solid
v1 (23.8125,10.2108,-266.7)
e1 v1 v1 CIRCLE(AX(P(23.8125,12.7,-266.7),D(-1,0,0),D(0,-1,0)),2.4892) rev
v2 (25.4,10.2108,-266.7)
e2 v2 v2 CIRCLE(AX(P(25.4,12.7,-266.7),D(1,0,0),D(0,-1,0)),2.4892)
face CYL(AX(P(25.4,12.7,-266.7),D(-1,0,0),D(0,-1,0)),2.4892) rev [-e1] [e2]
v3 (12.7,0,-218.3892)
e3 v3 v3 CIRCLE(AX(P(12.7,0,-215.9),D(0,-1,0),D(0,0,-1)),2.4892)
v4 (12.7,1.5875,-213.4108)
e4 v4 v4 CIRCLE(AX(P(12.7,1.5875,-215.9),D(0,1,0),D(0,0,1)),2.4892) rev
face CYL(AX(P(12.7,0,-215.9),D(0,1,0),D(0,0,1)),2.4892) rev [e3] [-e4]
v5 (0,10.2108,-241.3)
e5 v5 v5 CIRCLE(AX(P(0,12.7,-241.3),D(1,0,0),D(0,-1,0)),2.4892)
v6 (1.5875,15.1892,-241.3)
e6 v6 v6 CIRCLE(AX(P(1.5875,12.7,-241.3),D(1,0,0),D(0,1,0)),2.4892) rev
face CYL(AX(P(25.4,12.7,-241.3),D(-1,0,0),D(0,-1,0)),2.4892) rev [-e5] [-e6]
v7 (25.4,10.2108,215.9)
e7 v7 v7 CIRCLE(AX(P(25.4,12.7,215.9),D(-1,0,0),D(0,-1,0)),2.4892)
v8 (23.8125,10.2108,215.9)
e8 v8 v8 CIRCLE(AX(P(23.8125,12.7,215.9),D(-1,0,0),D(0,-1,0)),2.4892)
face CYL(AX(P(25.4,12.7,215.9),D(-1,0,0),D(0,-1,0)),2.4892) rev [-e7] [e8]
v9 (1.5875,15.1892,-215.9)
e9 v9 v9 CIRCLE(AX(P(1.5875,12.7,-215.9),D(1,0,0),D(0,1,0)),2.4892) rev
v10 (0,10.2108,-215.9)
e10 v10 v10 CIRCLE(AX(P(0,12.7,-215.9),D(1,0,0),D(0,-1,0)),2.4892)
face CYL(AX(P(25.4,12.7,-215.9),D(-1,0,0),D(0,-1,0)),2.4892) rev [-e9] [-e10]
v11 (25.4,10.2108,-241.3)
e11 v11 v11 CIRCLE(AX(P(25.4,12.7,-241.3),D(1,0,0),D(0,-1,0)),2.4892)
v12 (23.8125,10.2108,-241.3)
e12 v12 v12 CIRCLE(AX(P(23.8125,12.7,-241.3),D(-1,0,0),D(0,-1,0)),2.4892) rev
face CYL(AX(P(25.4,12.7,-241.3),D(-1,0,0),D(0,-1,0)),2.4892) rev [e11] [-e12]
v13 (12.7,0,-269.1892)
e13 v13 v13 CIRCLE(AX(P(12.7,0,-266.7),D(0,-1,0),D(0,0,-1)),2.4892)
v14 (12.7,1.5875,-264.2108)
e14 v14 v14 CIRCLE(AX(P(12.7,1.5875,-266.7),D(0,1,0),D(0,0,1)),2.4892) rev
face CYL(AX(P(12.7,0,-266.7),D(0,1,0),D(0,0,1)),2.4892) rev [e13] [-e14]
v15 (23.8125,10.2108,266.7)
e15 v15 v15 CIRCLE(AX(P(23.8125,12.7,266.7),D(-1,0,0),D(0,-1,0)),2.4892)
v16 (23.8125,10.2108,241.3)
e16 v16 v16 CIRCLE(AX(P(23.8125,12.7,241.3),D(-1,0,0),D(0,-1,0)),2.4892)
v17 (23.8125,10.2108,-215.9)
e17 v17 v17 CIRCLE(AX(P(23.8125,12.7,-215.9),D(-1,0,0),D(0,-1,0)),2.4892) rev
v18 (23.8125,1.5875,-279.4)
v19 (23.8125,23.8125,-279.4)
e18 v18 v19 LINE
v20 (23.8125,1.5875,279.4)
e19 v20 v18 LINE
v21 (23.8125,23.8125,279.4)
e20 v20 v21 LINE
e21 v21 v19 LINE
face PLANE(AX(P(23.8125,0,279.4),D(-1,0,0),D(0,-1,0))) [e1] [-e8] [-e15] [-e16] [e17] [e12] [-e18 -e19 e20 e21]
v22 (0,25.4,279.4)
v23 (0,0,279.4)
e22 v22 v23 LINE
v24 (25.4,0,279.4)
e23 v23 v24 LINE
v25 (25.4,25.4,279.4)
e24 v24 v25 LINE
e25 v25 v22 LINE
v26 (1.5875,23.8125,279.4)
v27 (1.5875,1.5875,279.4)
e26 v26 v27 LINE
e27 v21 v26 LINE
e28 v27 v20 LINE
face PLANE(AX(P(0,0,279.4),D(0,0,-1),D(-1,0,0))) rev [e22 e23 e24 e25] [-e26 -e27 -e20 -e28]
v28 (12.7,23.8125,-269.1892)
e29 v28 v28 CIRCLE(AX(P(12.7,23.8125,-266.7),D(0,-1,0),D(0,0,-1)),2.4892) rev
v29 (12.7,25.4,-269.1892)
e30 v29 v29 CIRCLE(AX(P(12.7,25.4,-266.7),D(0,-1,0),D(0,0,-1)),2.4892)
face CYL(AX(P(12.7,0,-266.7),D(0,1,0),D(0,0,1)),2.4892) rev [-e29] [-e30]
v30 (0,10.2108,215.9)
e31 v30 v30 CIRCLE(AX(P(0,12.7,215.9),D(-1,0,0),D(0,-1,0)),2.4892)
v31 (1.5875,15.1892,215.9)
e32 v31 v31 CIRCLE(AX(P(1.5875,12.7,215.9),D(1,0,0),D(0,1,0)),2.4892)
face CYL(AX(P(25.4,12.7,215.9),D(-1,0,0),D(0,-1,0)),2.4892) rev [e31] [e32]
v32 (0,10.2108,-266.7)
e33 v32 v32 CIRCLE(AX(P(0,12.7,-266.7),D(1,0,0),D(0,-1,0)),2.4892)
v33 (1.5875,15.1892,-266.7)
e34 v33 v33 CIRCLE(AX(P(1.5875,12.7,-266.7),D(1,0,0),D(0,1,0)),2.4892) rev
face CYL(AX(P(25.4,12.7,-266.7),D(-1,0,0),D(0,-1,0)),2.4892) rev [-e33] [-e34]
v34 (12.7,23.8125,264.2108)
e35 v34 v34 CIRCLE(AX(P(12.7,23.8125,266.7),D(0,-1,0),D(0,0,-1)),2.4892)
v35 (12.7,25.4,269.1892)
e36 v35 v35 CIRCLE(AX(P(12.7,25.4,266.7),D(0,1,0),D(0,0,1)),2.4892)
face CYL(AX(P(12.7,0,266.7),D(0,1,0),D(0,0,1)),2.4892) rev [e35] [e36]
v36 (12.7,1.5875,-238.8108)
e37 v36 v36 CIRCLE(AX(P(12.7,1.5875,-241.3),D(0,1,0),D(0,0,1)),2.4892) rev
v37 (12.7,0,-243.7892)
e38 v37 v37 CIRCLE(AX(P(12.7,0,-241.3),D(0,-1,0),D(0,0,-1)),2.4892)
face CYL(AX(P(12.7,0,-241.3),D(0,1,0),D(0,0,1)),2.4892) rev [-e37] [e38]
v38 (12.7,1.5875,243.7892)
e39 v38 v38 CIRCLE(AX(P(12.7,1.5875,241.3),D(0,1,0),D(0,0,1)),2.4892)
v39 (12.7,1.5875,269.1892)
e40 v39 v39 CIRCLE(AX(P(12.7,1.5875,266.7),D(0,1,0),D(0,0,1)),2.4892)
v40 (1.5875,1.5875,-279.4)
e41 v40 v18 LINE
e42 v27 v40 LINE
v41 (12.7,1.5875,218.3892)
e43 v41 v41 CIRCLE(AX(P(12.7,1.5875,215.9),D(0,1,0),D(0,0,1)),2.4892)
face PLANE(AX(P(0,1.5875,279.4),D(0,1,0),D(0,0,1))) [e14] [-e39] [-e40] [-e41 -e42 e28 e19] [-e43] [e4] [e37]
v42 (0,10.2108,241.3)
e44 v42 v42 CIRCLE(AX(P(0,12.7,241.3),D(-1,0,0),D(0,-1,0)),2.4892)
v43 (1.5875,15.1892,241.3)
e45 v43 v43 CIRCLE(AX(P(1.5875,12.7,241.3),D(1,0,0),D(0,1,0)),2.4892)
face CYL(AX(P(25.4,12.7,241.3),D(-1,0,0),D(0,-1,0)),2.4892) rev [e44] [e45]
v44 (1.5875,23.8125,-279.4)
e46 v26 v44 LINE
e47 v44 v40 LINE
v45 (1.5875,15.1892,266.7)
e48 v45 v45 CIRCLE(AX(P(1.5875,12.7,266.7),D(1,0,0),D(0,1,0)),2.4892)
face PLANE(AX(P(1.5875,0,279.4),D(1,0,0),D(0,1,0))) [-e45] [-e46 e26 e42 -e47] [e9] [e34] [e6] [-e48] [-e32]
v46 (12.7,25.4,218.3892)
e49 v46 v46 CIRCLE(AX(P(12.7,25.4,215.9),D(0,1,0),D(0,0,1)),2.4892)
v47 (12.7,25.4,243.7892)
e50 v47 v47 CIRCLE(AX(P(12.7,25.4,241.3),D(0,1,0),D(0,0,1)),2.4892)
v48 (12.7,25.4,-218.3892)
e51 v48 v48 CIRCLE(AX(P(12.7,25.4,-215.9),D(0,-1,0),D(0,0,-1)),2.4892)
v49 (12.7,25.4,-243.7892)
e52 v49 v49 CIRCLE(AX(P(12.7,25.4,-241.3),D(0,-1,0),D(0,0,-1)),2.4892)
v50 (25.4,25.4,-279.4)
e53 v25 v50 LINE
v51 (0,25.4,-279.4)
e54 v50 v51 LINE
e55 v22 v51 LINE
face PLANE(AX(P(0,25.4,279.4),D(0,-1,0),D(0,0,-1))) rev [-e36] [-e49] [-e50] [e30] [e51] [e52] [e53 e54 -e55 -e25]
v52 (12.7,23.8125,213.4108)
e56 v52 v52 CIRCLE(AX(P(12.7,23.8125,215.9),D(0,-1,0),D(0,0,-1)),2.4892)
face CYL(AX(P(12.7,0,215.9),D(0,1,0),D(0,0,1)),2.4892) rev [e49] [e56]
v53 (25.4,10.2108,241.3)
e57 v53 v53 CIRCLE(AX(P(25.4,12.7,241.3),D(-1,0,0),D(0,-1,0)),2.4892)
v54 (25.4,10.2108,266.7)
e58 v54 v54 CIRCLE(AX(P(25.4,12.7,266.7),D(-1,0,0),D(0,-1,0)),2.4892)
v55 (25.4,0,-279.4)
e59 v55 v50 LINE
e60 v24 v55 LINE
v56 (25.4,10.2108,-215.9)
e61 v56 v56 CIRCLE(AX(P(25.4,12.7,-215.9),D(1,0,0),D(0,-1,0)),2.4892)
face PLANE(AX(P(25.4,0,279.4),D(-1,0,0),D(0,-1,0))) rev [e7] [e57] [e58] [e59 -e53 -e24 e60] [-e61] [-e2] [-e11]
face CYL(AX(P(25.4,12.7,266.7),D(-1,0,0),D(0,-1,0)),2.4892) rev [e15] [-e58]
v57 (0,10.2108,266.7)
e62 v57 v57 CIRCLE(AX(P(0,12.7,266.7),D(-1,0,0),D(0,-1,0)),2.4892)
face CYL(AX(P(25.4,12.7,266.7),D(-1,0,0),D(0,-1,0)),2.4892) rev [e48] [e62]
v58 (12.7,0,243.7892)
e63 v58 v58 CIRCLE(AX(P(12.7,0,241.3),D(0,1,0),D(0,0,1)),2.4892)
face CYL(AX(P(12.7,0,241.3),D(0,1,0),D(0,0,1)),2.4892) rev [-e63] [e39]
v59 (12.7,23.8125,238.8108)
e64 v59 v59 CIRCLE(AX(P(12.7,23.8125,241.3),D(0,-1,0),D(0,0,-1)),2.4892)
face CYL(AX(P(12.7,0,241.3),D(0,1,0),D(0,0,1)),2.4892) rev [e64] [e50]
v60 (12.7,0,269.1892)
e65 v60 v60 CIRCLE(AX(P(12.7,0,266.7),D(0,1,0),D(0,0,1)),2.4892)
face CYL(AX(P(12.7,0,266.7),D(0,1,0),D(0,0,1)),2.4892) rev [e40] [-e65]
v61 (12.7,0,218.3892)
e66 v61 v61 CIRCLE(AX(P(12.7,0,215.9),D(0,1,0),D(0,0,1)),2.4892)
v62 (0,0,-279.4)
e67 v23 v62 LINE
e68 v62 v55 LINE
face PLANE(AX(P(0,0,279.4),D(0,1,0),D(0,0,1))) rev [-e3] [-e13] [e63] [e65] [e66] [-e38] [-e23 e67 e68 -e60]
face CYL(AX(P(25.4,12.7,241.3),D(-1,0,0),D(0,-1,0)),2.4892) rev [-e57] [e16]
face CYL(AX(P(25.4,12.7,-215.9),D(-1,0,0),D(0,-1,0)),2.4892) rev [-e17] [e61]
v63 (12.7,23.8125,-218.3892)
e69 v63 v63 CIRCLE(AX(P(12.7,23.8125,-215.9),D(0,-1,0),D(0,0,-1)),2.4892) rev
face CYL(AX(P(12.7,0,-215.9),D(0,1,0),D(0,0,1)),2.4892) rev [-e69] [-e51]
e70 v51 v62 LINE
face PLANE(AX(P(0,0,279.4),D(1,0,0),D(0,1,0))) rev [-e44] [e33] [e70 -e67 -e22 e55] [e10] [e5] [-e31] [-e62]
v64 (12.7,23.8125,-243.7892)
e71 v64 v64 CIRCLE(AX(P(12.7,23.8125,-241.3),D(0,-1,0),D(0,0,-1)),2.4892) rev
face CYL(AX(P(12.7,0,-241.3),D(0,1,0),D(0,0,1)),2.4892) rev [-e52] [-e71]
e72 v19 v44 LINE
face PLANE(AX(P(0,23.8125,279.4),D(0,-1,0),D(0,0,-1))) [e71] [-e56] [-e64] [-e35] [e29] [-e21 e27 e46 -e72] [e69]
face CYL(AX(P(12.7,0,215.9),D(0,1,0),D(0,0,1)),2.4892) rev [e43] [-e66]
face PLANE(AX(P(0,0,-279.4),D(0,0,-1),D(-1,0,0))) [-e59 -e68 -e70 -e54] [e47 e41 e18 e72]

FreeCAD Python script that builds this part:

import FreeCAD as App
import Part
import Sketcher

V = App.Vector
Q = App.Units.Quantity


def faces_at(feature, points):
    """Names of the faces that lie closest to the given points."""
    faces = feature.Shape.Faces
    near = lambda p: min(range(len(faces)), key=lambda i: faces[i].distToShape(Part.Vertex(*p))[0])
    return sorted({f"Face{near(p) + 1}" for p in points})


def add_polygon(sketch, points):
    """Adds a closed chain of lines whose ends are joined by coincident constraints."""
    first, n = sketch.GeometryCount, len(points)
    for a, b in zip(points, points[1:] + points[:1]):
        sketch.addGeometry(Part.LineSegment(App.Vector(*a, 0), App.Vector(*b, 0)), False)
    for i in range(n):
        sketch.addConstraint(Sketcher.Constraint("Coincident", first + i, 2, first + (i + 1) % n, 1))

doc = App.newDocument("Part")
body = doc.addObject("PartDesign::Body", "Body")

sketch1 = body.newObject("Sketcher::SketchObject", "Sketch")
sketch1.AttachmentSupport = (doc.getObject("XY_Plane"), [""])
sketch1.MapMode = "FlatFace"
add_polygon(sketch1, [(0, 25), (0, 0), (25, 0), (25, 25)])
sketch1.addConstraint([
    Sketcher.Constraint("Vertical", 0),
    Sketcher.Constraint("Horizontal", 1),
    Sketcher.Constraint("Vertical", 2),
    Sketcher.Constraint("Horizontal", 3),
    Sketcher.Constraint("Coincident", 0, 2, -1, 1),
    Sketcher.Constraint("Equal", 3, 0),
    Sketcher.Constraint("DistanceX", 1, 1, 1, 2, Q("1 in")),
])
pad1 = body.newObject("PartDesign::Pad", "Pad")
pad1.Profile = sketch1
pad1.Length = Q("22 in")
pad1.Midplane = True
doc.recompute()

thickness = body.newObject("PartDesign::Thickness", "Thickness")
thickness.Base = (pad1, faces_at(pad1, [(12.7, 12.7, 279.4), (12.7, 12.7, -279.4)]))
thickness.Value = Q("0.0625 in")
thickness.Reversed = True
thickness.Join = "Intersection"

sketch2 = body.newObject("Sketcher::SketchObject", "Sketch001")
sketch2.AttachmentSupport = (doc.getObject("XZ_Plane"), [""])
sketch2.MapMode = "FlatFace"
sketch2.AttachmentOffset = App.Placement(V(0, 0, -1 * 25.4), App.Rotation())
sketch2.addGeometry([
    Part.Circle(V(12.7, 266.7, 0), V(0, 0, 1), 2.5),
    Part.Circle(V(12.7, 241.3, 0), V(0, 0, 1), 2.5),
    Part.Circle(V(12.7, 215.9, 0), V(0, 0, 1), 2.5),
], False)
sketch2.addConstraint([
    Sketcher.Constraint("Equal", 0, 1),
    Sketcher.Constraint("Equal", 1, 2),
    Sketcher.Constraint("Vertical", 0, 3, 1, 3),
    Sketcher.Constraint("Vertical", 1, 3, 2, 3),
    Sketcher.Constraint("Diameter", 0, Q("0.196 in")),
    Sketcher.Constraint("DistanceY", 1, 3, 0, 3, Q("1 in")),
    Sketcher.Constraint("DistanceY", 2, 3, 1, 3, Q("1 in")),
    Sketcher.Constraint("DistanceX", -1, 1, 0, 3, Q("0.5 in")),
    Sketcher.Constraint("DistanceY", -1, 1, 0, 3, Q("10.5 in")),
])
pocket1 = body.newObject("PartDesign::Pocket", "Pocket")
pocket1.Profile = sketch2
pocket1.Type = "ThroughAll"
pocket1.Reversed = True

sketch3 = body.newObject("Sketcher::SketchObject", "Sketch002")
sketch3.AttachmentSupport = (doc.getObject("YZ_Plane"), [""])
sketch3.MapMode = "FlatFace"
sketch3.addGeometry([
    Part.Circle(V(12.7, 266.7, 0), V(0, 0, 1), 2.5),
    Part.Circle(V(12.7, 241.3, 0), V(0, 0, 1), 2.5),
    Part.Circle(V(12.7, 215.9, 0), V(0, 0, 1), 2.5),
], False)
sketch3.addConstraint([
    Sketcher.Constraint("Equal", 0, 1),
    Sketcher.Constraint("Equal", 1, 2),
    Sketcher.Constraint("Vertical", 0, 3, 1, 3),
    Sketcher.Constraint("Vertical", 1, 3, 2, 3),
    Sketcher.Constraint("Diameter", 0, Q("0.196 in")),
    Sketcher.Constraint("DistanceY", 1, 3, 0, 3, Q("1 in")),
    Sketcher.Constraint("DistanceY", 2, 3, 1, 3, Q("1 in")),
    Sketcher.Constraint("DistanceX", -1, 1, 0, 3, Q("0.5 in")),
    Sketcher.Constraint("DistanceY", -1, 1, 0, 3, Q("10.5 in")),
])
pocket2 = body.newObject("PartDesign::Pocket", "Pocket001")
pocket2.Profile = sketch3
pocket2.Type = "ThroughAll"
pocket2.Reversed = True
doc.recompute()

mirrored = body.newObject("PartDesign::Mirrored", "Mirrored")
mirrored.Originals = [pocket1, pocket2]
mirrored.MirrorPlane = (doc.getObject("XY_Plane"), [""])
body.Tip = mirrored

doc.recompute()
